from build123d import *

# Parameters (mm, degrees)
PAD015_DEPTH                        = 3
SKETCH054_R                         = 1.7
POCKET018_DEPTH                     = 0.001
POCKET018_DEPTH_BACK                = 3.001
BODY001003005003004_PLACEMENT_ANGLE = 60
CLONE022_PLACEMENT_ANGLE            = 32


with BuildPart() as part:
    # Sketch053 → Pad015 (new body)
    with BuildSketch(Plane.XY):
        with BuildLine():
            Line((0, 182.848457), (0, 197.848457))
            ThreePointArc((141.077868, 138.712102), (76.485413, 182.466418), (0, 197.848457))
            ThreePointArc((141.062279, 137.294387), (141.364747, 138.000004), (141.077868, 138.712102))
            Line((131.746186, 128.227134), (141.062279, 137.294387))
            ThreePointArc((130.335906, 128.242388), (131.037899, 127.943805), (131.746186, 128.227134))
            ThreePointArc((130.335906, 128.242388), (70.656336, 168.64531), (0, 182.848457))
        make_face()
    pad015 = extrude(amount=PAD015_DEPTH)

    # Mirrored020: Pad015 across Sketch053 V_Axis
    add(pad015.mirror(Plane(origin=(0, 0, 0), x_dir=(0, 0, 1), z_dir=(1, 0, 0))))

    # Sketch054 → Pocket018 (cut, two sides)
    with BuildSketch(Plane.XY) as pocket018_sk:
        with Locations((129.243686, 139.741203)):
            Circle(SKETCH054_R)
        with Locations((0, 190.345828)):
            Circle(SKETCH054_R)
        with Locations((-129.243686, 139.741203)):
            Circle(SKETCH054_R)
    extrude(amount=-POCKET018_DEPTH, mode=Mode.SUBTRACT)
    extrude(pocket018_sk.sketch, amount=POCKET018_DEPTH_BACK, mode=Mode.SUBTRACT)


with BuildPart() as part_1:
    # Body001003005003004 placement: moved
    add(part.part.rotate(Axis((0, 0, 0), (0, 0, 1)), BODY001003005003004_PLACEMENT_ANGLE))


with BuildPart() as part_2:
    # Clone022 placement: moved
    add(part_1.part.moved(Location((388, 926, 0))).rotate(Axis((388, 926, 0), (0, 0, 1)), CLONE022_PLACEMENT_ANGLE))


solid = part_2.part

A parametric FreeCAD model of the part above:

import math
import FreeCAD as App
import Part
import Sketcher
Q = App.Units.Quantity

doc = App.newDocument("Part")
body = doc.addObject("PartDesign::Body", "Body")

# Sketch on XY plane
sketch1 = doc.addObject("Sketcher::SketchObject", "Sketch")
body.addObject(sketch1)
sketch1.AttachmentSupport = (doc.XY_Plane, [""])
sketch1.MapMode = "FlatFace"
sketch1.addGeometry(Part.LineSegment(App.Vector(0, 197.8, 0), App.Vector(0, 182.8, 0)), False)
sketch1.addGeometry(Part.ArcOfCircle(Part.Circle(App.Vector(0, 0, 0), App.Vector(0, 0, 1), 182.8), math.radians(45), math.radians(90)), False)
sketch1.addGeometry(Part.ArcOfCircle(Part.Circle(App.Vector(131, 128.9, 0), App.Vector(0, 0, 1), 1), math.radians(-135), math.radians(-46)), False)
sketch1.addGeometry(Part.LineSegment(App.Vector(131.7, 128.2, 0), App.Vector(141.1, 137.3, 0)), False)
sketch1.addGeometry(Part.ArcOfCircle(Part.Circle(App.Vector(140.4, 138, 0), App.Vector(0, 0, 1), 1), math.radians(-46), math.radians(45)), False)
sketch1.addGeometry(Part.ArcOfCircle(Part.Circle(App.Vector(0, 0, 0), App.Vector(0, 0, 1), 197.8), math.radians(45), math.radians(90)), False)
sketch1.addConstraint(Sketcher.Constraint("Coincident", 0, 2, 1, 2))
sketch1.addConstraint(Sketcher.Constraint("Tangent", 1, 1, 2, 1))
sketch1.addConstraint(Sketcher.Constraint("Tangent", 2, 2, 3, 1))
sketch1.addConstraint(Sketcher.Constraint("Tangent", 3, 2, 4, 1))
sketch1.addConstraint(Sketcher.Constraint("Tangent", 4, 2, 5, 1))
sketch1.addConstraint(Sketcher.Constraint("Coincident", 5, 2, 0, 1))
sketch1.addConstraint(Sketcher.Constraint("Vertical", 0))
sketch1.addConstraint(Sketcher.Constraint("Coincident", 1, 3, -1, 1))
sketch1.addConstraint(Sketcher.Constraint("Coincident", 5, 3, -1, 1))
sketch1.addConstraint(Sketcher.Constraint("Equal", 2, 4))
sketch1.addConstraint(Sketcher.Constraint("PointOnObject", 0, 2, -2))
sketch1.addConstraint(Sketcher.Constraint("Radius", 2, Q("1 mm")))
sketch1.addConstraint(Sketcher.Constraint("DistanceY", 0, 2, 0, 1, Q("15 mm")))
sketch1.addConstraint(Sketcher.Constraint("DistanceY", -1, 1, 4, 3, Q("138.011 mm")))
sketch1.addConstraint(Sketcher.Constraint("Radius", 1, Q("182.848456 mm")))
sketch1.addConstraint(Sketcher.Constraint("DistanceY", 1, 1, 3, 2, Q("9.051999 mm")))
pad1 = doc.addObject("PartDesign::Pad", "Pad")
body.addObject(pad1)
pad1.Profile = sketch1
pad1.Length = 3
doc.recompute()

mirrored = doc.addObject("PartDesign::Mirrored", "Mirrored")
body.addObject(mirrored)
mirrored.Originals = [pad1]
mirrored.MirrorPlane = (doc.YZ_Plane, [""])
body.Tip = mirrored

# Sketch on XY plane
sketch2 = doc.addObject("Sketcher::SketchObject", "Sketch001")
body.addObject(sketch2)
sketch2.AttachmentSupport = (doc.XY_Plane, [""])
sketch2.MapMode = "FlatFace"
sketch2.addGeometry(Part.Circle(App.Vector(129.2, 139.7, 0), App.Vector(0, 0, 1), 1.7), False)
sketch2.addGeometry(Part.Circle(App.Vector(0, 190.3, 0), App.Vector(0, 0, 1), 1.7), False)
sketch2.addGeometry(Part.Circle(App.Vector(-129.2, 139.7, 0), App.Vector(0, 0, 1), 1.7), False)
sketch2.addConstraint(Sketcher.Constraint("Equal", 0, 1))
sketch2.addConstraint(Sketcher.Constraint("Equal", 1, 2))
sketch2.addConstraint(Sketcher.Constraint("Symmetric", 0, 3, 2, 3, -2))
sketch2.addConstraint(Sketcher.Constraint("PointOnObject", 1, 3, -2))
sketch2.addConstraint(Sketcher.Constraint("Diameter", 0, Q("3.4 mm")))
sketch2.addConstraint(Sketcher.Constraint("DistanceY", -1, 1, 1, 3, Q("190.345828 mm")))
sketch2.addConstraint(Sketcher.Constraint("DistanceX", 2, 3, 0, 3, Q("258.487372 mm")))
sketch2.addConstraint(Sketcher.Constraint("DistanceY", -1, 1, 0, 3, Q("139.741203 mm")))
pocket1 = doc.addObject("PartDesign::Pocket", "Pocket")
body.addObject(pocket1)
pocket1.Profile = sketch2
pocket1.Type = "ThroughAll"
pocket1.Midplane = True
body2 = doc.addObject("PartDesign::Body", "Body001")
doc.recompute()

body.Placement = App.Placement(App.Vector(0, 0, 0), App.Rotation(App.Vector(0, 0, 1), 60))
boolean = doc.addObject("PartDesign::Boolean", "Boolean")
body2.addObject(boolean)
boolean.Type = "Fuse"
boolean.addObjects([body])
body3 = doc.addObject("PartDesign::Body", "Body002")
doc.recompute()

body2.Placement = App.Placement(App.Vector(388, 926, 0), App.Rotation(App.Vector(0, 0, 1), 32))
boolean2 = doc.addObject("PartDesign::Boolean", "Boolean001")
body3.addObject(boolean2)
boolean2.Type = "Fuse"
boolean2.addObjects([body2])

doc.recompute()
